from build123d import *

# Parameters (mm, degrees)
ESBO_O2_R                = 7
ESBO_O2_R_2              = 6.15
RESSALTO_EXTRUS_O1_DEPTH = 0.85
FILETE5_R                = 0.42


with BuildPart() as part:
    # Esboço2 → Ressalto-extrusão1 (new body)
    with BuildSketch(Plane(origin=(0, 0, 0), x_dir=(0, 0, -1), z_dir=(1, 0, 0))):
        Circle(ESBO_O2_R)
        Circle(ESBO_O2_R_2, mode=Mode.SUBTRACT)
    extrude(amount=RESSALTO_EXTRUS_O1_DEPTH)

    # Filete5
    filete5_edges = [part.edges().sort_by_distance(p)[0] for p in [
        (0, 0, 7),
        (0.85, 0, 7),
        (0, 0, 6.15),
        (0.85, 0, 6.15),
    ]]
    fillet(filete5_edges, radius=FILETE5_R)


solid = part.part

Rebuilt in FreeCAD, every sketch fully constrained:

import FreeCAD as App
import Part
import Sketcher
from FreeCAD import Vector
Q = App.Units.Quantity


def edges_at(feature, points):
    """Names of the edges that pass closest to the given points."""
    edges = feature.Shape.Edges
    near = lambda p: min(range(len(edges)), key=lambda i: edges[i].distToShape(Part.Vertex(*p))[0])
    return sorted({f"Edge{near(p) + 1}" for p in points})

doc = App.newDocument("Part")
body = doc.addObject("PartDesign::Body", "Body")

# Sketch on YZ plane
sketch1 = body.newObject("Sketcher::SketchObject", "Sketch")
sketch1.AttachmentSupport = (doc.getObject("YZ_Plane"), [""])
sketch1.MapMode = "FlatFace"
sketch1.addGeometry(Part.Circle(Vector(0, 0, 0), Vector(0, 0, 1), 7), False)
sketch1.addGeometry(Part.Circle(Vector(0, 0, 0), Vector(0, 0, 1), 6), False)
sketch1.addConstraint(Sketcher.Constraint("Coincident", 0, 3, -1, 1))
sketch1.addConstraint(Sketcher.Constraint("Coincident", 1, 3, -1, 1))
sketch1.addConstraint(Sketcher.Constraint("Diameter", 0, Q("14 mm")))
sketch1.addConstraint(Sketcher.Constraint("Diameter", 1, Q("12.3 mm")))
pad1 = body.newObject("PartDesign::Pad", "Pad")
pad1.Profile = sketch1
pad1.Length = 0.85
doc.recompute()

fillet = body.newObject("PartDesign::Fillet", "Fillet")
fillet.Base = (pad1, edges_at(pad1, [
    (0, 0, 7),
    (0.85, 0, 7),
    (0, 0, 6.15),
    (0.85, 0, 6.15),
]))
fillet.Radius = 0.42

doc.recompute()
